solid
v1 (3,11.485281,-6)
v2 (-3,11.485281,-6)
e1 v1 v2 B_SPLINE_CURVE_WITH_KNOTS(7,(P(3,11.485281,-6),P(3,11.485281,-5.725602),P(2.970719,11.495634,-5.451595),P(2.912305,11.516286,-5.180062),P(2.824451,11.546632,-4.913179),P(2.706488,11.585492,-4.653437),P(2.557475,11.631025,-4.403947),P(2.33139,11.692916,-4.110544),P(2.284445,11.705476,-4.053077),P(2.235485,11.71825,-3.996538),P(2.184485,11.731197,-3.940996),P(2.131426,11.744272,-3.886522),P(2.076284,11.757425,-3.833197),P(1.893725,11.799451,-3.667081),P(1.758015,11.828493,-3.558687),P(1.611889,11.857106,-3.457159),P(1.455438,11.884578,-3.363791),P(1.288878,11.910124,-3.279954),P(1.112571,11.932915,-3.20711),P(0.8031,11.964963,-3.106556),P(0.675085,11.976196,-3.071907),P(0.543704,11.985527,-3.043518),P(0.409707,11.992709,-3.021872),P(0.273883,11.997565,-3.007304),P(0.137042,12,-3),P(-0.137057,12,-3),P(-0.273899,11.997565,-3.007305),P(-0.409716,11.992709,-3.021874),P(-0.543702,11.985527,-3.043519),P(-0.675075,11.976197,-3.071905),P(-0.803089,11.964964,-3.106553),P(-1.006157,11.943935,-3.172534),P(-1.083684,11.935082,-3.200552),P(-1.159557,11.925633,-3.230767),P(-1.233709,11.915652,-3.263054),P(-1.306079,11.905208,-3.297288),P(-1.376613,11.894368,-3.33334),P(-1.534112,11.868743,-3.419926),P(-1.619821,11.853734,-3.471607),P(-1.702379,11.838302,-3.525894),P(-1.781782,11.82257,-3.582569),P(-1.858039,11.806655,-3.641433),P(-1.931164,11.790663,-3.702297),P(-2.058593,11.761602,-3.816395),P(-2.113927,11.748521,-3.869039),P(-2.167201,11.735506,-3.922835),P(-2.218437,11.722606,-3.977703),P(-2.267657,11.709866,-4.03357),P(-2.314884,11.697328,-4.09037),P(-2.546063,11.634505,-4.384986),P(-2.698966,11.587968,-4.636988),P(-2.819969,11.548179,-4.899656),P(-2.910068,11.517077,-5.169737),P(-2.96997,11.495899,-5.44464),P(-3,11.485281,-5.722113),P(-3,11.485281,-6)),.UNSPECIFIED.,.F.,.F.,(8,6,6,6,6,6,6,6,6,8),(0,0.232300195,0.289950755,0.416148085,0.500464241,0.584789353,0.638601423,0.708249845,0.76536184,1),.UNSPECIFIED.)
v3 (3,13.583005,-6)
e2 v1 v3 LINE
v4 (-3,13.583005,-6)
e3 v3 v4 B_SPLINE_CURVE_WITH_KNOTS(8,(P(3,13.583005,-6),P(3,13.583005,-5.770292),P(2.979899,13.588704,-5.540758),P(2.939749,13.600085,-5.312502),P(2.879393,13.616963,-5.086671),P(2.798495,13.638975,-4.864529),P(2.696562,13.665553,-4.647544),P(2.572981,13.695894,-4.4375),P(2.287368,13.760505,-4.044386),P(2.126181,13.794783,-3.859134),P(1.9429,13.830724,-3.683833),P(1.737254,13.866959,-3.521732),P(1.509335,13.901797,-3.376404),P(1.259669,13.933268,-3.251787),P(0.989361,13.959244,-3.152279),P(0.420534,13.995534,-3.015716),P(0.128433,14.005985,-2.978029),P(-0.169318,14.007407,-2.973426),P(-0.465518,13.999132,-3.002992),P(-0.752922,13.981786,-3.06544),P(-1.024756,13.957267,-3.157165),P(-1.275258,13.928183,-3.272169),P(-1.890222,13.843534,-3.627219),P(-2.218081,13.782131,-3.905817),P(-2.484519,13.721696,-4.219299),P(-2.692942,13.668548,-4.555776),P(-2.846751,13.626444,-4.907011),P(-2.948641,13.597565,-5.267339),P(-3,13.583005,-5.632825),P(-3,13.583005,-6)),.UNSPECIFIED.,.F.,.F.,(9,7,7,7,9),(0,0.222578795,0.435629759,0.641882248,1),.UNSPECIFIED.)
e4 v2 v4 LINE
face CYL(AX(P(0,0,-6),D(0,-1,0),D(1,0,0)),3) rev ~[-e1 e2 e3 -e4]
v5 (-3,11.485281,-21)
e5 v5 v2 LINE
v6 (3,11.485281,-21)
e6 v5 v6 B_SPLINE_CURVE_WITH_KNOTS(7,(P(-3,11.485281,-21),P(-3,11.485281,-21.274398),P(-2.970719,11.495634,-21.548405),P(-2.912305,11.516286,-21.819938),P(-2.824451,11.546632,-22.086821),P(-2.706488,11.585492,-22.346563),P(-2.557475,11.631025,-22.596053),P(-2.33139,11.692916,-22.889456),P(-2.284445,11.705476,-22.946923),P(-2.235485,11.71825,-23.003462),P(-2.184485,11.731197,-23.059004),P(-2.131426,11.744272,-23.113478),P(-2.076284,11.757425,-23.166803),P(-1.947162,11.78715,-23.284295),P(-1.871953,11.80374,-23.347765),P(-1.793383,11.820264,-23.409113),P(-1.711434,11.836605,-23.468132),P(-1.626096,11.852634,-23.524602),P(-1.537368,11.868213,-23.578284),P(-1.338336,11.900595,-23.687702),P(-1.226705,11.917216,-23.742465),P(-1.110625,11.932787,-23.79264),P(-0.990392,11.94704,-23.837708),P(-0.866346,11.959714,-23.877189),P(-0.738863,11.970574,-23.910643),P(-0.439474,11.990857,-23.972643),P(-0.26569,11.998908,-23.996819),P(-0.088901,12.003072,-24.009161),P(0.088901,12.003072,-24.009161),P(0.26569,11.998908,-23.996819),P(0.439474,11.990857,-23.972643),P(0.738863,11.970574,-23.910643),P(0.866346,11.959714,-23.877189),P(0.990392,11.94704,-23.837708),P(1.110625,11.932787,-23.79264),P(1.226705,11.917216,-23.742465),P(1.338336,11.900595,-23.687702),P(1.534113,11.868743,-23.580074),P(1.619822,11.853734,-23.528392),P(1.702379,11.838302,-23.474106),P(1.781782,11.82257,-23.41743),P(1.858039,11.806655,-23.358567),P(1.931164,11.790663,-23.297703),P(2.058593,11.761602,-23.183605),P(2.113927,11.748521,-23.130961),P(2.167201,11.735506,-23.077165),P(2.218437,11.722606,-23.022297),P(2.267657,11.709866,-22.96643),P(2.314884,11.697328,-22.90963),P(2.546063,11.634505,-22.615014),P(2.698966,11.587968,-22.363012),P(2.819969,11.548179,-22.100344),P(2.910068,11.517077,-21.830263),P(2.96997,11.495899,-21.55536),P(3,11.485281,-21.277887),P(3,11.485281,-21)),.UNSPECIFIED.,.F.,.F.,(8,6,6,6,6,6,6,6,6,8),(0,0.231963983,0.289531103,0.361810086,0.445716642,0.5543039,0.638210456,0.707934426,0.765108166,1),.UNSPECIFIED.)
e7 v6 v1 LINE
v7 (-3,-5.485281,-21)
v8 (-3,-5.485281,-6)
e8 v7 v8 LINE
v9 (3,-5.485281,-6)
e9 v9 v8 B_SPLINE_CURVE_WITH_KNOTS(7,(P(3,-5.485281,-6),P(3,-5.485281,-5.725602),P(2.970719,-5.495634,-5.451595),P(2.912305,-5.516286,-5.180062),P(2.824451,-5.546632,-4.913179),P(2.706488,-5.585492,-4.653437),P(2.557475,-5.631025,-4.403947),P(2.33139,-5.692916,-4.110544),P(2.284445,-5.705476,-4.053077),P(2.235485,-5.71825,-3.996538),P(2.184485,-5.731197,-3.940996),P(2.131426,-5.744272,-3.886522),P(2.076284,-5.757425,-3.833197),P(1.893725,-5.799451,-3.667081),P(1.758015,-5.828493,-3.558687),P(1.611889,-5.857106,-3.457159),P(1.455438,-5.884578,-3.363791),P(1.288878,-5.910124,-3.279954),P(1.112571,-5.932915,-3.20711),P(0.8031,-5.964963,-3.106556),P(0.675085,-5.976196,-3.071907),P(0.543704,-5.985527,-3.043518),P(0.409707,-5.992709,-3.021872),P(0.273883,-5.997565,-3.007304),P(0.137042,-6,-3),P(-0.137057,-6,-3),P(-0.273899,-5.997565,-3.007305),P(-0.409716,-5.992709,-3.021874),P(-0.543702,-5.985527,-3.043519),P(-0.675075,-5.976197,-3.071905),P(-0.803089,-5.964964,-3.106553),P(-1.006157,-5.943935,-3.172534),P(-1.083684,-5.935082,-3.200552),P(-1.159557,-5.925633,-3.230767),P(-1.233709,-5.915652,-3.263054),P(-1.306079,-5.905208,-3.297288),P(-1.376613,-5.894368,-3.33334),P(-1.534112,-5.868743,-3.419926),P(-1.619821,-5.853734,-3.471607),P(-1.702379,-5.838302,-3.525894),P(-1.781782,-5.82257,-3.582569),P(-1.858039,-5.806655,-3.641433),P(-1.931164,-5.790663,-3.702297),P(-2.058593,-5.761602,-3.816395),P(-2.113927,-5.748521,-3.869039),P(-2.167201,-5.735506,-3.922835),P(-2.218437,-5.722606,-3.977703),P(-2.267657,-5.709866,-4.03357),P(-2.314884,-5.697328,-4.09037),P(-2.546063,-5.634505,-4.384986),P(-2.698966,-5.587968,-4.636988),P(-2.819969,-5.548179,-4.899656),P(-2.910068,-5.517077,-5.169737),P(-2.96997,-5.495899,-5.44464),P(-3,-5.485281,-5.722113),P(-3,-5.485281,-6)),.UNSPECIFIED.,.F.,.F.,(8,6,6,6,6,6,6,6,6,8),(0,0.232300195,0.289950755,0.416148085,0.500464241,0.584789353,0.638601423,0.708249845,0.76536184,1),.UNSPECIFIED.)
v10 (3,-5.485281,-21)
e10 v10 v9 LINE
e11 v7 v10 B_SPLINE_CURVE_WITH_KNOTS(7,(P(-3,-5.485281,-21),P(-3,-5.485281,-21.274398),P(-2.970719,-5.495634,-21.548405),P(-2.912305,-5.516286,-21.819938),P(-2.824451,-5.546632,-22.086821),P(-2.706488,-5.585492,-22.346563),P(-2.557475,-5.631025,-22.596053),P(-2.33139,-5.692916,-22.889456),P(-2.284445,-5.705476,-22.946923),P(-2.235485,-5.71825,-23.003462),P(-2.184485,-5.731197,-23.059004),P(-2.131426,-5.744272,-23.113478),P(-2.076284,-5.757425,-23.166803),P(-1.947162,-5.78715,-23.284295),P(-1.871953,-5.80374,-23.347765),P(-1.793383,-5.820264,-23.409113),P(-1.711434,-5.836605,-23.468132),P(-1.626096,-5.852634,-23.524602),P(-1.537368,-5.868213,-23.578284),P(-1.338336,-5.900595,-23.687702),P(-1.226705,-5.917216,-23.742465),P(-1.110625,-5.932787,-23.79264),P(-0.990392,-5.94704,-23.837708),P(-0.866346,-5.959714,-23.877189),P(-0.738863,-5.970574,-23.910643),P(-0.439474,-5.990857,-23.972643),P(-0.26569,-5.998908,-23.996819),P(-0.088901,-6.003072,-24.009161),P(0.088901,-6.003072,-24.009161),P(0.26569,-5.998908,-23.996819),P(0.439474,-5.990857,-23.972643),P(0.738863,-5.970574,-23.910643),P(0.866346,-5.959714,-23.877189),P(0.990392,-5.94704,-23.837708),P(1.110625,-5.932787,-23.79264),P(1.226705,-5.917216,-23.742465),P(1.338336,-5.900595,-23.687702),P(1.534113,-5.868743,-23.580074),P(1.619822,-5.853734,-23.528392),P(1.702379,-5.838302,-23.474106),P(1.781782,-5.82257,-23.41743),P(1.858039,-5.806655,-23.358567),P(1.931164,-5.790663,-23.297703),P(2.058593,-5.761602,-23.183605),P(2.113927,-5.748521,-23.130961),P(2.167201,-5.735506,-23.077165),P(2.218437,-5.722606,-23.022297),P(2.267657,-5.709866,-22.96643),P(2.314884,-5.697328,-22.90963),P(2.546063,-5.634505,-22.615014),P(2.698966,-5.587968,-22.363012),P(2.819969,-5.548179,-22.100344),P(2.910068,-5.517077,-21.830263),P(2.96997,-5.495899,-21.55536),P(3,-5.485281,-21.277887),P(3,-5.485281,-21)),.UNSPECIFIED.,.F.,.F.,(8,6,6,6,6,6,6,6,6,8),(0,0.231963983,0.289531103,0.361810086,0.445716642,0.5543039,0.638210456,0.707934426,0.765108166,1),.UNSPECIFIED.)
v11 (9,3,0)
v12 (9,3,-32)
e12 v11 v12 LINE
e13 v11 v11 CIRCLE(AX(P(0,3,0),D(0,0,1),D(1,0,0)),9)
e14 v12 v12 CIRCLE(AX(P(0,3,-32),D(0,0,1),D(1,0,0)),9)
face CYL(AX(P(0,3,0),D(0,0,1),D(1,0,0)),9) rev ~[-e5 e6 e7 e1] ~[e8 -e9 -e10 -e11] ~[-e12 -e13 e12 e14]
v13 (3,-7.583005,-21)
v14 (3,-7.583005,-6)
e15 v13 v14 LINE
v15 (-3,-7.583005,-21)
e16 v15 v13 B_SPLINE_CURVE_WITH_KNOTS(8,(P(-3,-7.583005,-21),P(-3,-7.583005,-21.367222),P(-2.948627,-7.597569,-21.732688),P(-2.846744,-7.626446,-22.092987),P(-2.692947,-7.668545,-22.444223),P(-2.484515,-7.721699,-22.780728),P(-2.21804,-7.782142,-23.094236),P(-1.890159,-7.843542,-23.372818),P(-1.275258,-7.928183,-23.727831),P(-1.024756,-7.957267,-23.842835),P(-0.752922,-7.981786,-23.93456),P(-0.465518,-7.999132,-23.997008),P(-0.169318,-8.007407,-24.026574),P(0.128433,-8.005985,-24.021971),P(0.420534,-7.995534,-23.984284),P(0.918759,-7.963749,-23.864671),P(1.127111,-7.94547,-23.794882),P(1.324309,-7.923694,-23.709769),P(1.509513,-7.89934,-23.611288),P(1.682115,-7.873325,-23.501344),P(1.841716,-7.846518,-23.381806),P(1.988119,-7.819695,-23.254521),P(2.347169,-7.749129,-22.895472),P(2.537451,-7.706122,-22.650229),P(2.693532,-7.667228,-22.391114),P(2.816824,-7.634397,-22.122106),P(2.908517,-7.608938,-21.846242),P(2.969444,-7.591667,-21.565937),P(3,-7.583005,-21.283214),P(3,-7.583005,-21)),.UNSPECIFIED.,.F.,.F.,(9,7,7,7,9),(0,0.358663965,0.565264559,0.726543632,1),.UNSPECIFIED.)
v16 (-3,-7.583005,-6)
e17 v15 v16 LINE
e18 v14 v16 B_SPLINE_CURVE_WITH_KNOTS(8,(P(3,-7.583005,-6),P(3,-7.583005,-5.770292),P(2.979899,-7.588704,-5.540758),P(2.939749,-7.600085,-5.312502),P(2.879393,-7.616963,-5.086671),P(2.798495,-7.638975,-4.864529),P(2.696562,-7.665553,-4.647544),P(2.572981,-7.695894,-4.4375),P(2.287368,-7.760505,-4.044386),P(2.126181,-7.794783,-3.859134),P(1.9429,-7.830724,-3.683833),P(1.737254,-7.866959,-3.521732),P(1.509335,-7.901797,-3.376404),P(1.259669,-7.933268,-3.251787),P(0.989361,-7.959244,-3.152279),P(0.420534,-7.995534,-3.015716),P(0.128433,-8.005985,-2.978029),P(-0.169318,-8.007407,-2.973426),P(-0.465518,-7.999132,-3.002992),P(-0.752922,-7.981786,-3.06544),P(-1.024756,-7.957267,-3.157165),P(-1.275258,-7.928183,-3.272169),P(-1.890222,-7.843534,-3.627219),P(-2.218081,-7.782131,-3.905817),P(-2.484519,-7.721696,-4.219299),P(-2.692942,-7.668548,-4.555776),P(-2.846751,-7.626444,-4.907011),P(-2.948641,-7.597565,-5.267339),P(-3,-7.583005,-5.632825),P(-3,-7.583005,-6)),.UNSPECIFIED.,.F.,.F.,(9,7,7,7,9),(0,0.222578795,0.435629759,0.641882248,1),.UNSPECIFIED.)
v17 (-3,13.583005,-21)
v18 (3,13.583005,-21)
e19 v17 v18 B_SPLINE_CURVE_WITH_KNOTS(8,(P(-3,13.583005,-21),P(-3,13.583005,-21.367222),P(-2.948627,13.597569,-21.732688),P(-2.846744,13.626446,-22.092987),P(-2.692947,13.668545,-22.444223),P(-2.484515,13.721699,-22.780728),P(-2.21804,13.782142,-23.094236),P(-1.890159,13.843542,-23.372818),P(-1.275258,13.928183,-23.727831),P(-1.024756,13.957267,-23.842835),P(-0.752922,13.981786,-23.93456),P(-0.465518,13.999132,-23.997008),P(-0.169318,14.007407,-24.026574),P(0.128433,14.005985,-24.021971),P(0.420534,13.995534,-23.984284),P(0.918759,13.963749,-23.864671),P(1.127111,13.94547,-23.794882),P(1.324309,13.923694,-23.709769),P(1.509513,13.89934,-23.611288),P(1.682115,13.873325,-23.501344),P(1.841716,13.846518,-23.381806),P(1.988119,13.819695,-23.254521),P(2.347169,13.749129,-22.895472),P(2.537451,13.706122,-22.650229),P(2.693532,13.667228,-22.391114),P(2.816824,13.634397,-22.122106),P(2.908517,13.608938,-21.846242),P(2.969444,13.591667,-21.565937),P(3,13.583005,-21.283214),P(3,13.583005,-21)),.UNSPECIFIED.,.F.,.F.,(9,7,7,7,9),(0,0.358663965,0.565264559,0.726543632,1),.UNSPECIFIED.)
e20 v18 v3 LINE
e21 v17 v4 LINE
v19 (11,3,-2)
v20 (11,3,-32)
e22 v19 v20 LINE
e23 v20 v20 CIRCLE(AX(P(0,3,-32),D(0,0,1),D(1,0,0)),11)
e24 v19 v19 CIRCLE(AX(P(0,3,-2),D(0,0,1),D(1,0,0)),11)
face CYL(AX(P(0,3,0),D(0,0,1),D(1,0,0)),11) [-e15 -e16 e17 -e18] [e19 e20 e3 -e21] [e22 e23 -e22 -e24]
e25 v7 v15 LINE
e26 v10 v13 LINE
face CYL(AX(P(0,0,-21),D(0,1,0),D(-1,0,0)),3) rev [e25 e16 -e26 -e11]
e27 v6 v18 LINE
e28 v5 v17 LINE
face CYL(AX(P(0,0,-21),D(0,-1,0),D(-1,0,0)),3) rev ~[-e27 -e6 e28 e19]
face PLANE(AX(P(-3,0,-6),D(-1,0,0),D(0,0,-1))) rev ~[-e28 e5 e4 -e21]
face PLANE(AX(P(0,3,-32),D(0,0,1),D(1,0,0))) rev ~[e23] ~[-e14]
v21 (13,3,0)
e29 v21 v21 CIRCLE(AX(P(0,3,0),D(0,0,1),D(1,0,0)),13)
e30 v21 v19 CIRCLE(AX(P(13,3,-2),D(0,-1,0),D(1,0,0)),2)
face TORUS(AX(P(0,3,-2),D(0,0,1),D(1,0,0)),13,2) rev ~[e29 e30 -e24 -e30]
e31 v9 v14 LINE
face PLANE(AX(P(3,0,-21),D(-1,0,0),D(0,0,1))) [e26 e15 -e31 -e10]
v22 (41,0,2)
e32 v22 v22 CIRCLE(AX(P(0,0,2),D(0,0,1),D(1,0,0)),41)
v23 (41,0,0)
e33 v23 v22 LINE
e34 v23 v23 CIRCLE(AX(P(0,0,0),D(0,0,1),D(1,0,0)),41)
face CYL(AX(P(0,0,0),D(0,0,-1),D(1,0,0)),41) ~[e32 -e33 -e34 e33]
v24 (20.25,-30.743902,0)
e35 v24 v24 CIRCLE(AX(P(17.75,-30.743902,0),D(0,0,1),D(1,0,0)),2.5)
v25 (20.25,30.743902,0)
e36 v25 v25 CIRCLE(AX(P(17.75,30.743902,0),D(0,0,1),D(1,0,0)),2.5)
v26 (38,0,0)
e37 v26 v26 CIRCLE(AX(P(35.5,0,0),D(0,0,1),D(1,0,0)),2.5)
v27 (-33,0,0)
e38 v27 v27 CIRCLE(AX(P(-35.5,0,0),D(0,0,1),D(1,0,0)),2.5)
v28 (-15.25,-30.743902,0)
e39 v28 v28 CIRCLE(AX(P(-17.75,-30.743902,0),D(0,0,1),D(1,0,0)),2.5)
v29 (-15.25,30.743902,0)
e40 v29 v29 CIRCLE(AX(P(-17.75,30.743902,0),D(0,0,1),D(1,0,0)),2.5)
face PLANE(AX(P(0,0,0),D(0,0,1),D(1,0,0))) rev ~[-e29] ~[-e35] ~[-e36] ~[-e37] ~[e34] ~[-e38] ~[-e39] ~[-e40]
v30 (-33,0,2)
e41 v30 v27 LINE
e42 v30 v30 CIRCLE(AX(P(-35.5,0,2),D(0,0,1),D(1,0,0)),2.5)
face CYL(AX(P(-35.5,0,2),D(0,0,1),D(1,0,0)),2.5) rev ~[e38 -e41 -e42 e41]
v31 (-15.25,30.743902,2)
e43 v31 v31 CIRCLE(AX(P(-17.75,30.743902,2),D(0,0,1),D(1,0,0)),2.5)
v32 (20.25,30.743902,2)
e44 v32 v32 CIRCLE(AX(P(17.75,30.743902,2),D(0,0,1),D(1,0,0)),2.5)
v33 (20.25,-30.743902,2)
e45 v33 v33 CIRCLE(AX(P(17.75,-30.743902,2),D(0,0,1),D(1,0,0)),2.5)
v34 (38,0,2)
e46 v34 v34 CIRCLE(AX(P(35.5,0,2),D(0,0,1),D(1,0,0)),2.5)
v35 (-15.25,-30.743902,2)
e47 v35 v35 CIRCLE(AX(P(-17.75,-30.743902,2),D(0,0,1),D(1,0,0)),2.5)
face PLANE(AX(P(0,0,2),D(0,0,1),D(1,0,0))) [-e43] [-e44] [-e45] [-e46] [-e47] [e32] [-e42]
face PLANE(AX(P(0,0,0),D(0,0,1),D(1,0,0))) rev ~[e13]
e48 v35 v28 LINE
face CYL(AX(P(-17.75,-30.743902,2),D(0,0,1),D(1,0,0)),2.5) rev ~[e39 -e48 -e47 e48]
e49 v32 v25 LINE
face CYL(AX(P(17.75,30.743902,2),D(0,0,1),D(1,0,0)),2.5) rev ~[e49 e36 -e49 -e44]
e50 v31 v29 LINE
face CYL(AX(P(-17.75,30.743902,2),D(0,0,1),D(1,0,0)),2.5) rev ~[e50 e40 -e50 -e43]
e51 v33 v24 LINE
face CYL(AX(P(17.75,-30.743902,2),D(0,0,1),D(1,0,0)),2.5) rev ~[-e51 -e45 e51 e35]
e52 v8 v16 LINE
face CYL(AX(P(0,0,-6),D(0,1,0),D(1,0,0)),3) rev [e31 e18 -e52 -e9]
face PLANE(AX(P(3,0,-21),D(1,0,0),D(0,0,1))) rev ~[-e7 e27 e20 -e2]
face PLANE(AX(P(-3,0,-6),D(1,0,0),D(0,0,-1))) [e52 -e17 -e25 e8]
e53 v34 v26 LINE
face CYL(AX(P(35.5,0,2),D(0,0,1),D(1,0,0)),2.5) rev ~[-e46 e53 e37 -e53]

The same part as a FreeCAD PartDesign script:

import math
import FreeCAD as App
import Part
import Sketcher

V = App.Vector
Q = App.Units.Quantity


def edges_at(feature, points):
    """Names of the edges that pass closest to the given points."""
    edges = feature.Shape.Edges
    near = lambda p: min(range(len(edges)), key=lambda i: edges[i].distToShape(Part.Vertex(*p))[0])
    return sorted({f"Edge{near(p) + 1}" for p in points})

doc = App.newDocument("Part")
body = doc.addObject("PartDesign::Body", "Body")

# Sketch on XY plane
sketch1 = doc.addObject("Sketcher::SketchObject", "Sketch")
body.addObject(sketch1)
sketch1.AttachmentSupport = (doc.XY_Plane, [""])
sketch1.MapMode = "FlatFace"
sketch1.addGeometry([
    Part.Circle(V(0, 3, 0), V(0, 0, 1), 11),
    Part.Circle(V(0, 3, 0), V(0, 0, 1), 9),
], False)
sketch1.addConstraint([
    Sketcher.Constraint("Coincident", 1, 3, 0, 3),
    Sketcher.Constraint("PointOnObject", 0, 3, -2),
    Sketcher.Constraint("Diameter", 0, Q("22 mm")),
    Sketcher.Constraint("Diameter", 1, Q("18 mm")),
    Sketcher.Constraint("DistanceY", -1, 1, 0, 3, Q("3 mm")),
])
pad1 = doc.addObject("PartDesign::Pad", "Pad")
body.addObject(pad1)
pad1.Profile = sketch1
pad1.Length = 32
pad1.Reversed = True

# Sketch on XZ plane
sketch2 = doc.addObject("Sketcher::SketchObject", "Sketch001")
body.addObject(sketch2)
sketch2.AttachmentSupport = (doc.XZ_Plane, [""])
sketch2.MapMode = "FlatFace"
sketch2.addGeometry([
    Part.LineSegment(V(3, -6, 0), V(3, -21, 0)),
    Part.ArcOfCircle(Part.Circle(V(0, -21, 0), V(0, 0, 1), 3), math.radians(180), math.radians(360)),
    Part.LineSegment(V(-3, -21, 0), V(-3, -6, 0)),
    Part.ArcOfCircle(Part.Circle(V(0, -6, 0), V(0, 0, 1), 3), math.radians(0), math.radians(180)),
], False)
sketch2.addConstraint([
    Sketcher.Constraint("Tangent", 0, 2, 1, 2),
    Sketcher.Constraint("Tangent", 1, 1, 2, 1),
    Sketcher.Constraint("Tangent", 2, 2, 3, 2),
    Sketcher.Constraint("Tangent", 3, 1, 0, 1),
    Sketcher.Constraint("Vertical", 0),
    Sketcher.Constraint("Vertical", 2),
    Sketcher.Constraint("PointOnObject", 1, 3, -2),
    Sketcher.Constraint("Radius", 1, Q("3 mm")),
    Sketcher.Constraint("DistanceY", 0, 2, 0, 1, Q("15 mm")),
    Sketcher.Constraint("DistanceY", 1, 3, -1, 1, Q("21 mm")),
])
pocket1 = doc.addObject("PartDesign::Pocket", "Pocket")
body.addObject(pocket1)
pocket1.Profile = sketch2
pocket1.Type = "ThroughAll"
pocket1.Midplane = True

# Sketch on XY plane
sketch3 = doc.addObject("Sketcher::SketchObject", "Sketch002")
body.addObject(sketch3)
sketch3.AttachmentSupport = (doc.XY_Plane, [""])
sketch3.MapMode = "FlatFace"
sketch3.addGeometry(Part.Circle(V(0, 0, 0), V(0, 0, 1), 41), False)
sketch3.addConstraint([
    Sketcher.Constraint("Coincident", 0, 3, -1, 1),
    Sketcher.Constraint("Diameter", 0, Q("82 mm")),
])
pad2 = doc.addObject("PartDesign::Pad", "Pad001")
body.addObject(pad2)
pad2.Profile = sketch3
pad2.Length = 2
doc.recompute()

fillet = doc.addObject("PartDesign::Fillet", "Fillet")
body.addObject(fillet)
fillet.Base = (pad2, edges_at(pad2, [(-11, 3, 0)]))
fillet.Radius = 2

# Sketch on XY plane
sketch4 = doc.addObject("Sketcher::SketchObject", "Sketch003")
body.addObject(sketch4)
sketch4.AttachmentSupport = (doc.XY_Plane, [""])
sketch4.MapMode = "FlatFace"
sketch4.AttachmentOffset = App.Placement(V(0, 0, 2), App.Rotation())
sketch4.addGeometry([
    Part.Circle(V(35.5, 0, 0), V(0, 0, 1), 2.5),  # 0
    Part.Circle(V(17.8, -30.7, 0), V(0, 0, 1), 2.5),  # 1
    Part.Circle(V(-17.8, -30.7, 0), V(0, 0, 1), 2.5),  # 2
    Part.Circle(V(-35.5, 0, 0), V(0, 0, 1), 2.5),  # 3
    Part.Circle(V(-17.8, 30.7, 0), V(0, 0, 1), 2.5),  # 4
    Part.Circle(V(17.8, 30.7, 0), V(0, 0, 1), 2.5),  # 5
], False)
sketch4.addConstraint([
    Sketcher.Constraint("Equal", 0, 1),
    Sketcher.Constraint("Equal", 1, 2),
    Sketcher.Constraint("Equal", 2, 3),
    Sketcher.Constraint("Equal", 3, 4),
    Sketcher.Constraint("Equal", 4, 5),
    Sketcher.Constraint("Symmetric", 0, 3, 3, 3, -1, 1),
    Sketcher.Constraint("Symmetric", 1, 3, 4, 3, -1, 1),
    Sketcher.Constraint("Symmetric", 2, 3, 5, 3, -1, 1),
    Sketcher.Constraint("Symmetric", 1, 3, 2, 3, -2),
    Sketcher.Constraint("PointOnObject", 0, 3, -1),
    Sketcher.Constraint("Diameter", 0, Q("5 mm")),
    Sketcher.Constraint("DistanceX", 3, 3, 0, 3, Q("71 mm")),
    Sketcher.Constraint("DistanceX", 2, 3, 1, 3, Q("35.5 mm")),
    Sketcher.Constraint("DistanceY", 1, 3, -1, 1, Q("30.743902 mm")),
])
pocket2 = doc.addObject("PartDesign::Pocket", "Pocket001")
body.addObject(pocket2)
pocket2.Profile = sketch4
pocket2.Length = 2

doc.recompute()
